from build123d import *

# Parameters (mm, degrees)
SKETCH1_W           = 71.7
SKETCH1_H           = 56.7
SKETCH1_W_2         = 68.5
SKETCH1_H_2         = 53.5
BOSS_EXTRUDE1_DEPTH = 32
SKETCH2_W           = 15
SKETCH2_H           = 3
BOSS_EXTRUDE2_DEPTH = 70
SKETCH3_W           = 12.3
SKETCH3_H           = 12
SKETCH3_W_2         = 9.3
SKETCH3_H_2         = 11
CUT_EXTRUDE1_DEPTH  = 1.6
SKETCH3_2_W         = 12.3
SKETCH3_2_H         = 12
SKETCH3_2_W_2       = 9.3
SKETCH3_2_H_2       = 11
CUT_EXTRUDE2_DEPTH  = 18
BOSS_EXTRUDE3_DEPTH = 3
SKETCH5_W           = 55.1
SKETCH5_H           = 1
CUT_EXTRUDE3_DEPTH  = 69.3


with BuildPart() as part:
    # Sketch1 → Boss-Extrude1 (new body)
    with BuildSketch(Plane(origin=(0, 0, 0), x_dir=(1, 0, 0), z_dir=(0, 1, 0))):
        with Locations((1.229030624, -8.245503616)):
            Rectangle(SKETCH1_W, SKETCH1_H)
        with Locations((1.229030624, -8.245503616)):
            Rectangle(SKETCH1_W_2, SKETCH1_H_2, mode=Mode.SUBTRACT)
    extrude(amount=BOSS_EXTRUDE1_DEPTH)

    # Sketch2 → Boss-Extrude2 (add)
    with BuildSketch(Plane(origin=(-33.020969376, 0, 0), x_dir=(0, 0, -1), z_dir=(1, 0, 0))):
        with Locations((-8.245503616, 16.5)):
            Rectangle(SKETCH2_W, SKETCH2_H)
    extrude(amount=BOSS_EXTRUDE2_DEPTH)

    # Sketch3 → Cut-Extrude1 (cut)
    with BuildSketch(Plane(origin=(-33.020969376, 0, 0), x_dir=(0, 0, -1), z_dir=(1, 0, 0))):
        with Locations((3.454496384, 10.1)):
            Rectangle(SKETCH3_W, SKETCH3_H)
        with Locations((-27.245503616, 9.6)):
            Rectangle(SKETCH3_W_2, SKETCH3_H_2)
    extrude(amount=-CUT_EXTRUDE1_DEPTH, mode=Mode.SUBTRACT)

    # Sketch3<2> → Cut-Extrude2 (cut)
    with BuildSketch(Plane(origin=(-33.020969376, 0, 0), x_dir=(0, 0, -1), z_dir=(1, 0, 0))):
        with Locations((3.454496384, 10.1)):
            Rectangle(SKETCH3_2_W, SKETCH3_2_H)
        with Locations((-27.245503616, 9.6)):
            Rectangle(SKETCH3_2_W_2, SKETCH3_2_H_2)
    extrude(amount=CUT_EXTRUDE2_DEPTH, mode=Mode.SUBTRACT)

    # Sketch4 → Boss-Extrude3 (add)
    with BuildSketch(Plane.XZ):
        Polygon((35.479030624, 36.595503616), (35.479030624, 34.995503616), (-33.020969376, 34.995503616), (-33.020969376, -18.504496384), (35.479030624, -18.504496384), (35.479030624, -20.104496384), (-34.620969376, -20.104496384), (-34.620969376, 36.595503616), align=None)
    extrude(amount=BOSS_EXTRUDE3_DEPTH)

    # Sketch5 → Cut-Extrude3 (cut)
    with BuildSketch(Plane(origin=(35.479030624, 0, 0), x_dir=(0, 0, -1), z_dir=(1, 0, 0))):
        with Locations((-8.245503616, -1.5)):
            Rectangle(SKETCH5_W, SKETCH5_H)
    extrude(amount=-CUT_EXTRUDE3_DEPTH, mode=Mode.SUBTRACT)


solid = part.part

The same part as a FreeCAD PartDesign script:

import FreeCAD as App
import Part
import Sketcher

V = App.Vector
Q = App.Units.Quantity


def add_polygon(sketch, points):
    """Adds a closed chain of lines whose ends are joined by coincident constraints."""
    first, n = sketch.GeometryCount, len(points)
    for a, b in zip(points, points[1:] + points[:1]):
        sketch.addGeometry(Part.LineSegment(App.Vector(*a, 0), App.Vector(*b, 0)), False)
    for i in range(n):
        sketch.addConstraint(Sketcher.Constraint("Coincident", first + i, 2, first + (i + 1) % n, 1))

doc = App.newDocument("Part")
body = doc.addObject("PartDesign::Body", "Body")

sketch1 = body.newObject("Sketcher::SketchObject", "Sketch")
sketch1.AttachmentSupport = (doc.getObject("XZ_Plane"), [""])
sketch1.MapMode = "FlatFace"
add_polygon(sketch1, [(-34.620969, -20.104496), (-34.620969, 36.595504), (37.079031, 36.595504), (37.079031, -20.104496)])
add_polygon(sketch1, [(35.479031, 34.995504), (-33.020969, 34.995504), (-33.020969, -18.504496), (35.479031, -18.504496)])
sketch1.addConstraint(Sketcher.Constraint("Vertical", 0))
sketch1.addConstraint(Sketcher.Constraint("Horizontal", 1))
sketch1.addConstraint(Sketcher.Constraint("Vertical", 2))
sketch1.addConstraint(Sketcher.Constraint("Horizontal", 3))
sketch1.addConstraint(Sketcher.Constraint("Horizontal", 4))
sketch1.addConstraint(Sketcher.Constraint("Vertical", 5))
sketch1.addConstraint(Sketcher.Constraint("Horizontal", 6))
sketch1.addConstraint(Sketcher.Constraint("Vertical", 7))
sketch1.addConstraint(Sketcher.Constraint("DistanceX", 1, 1, 1, 2, Q("71.7 mm")))
sketch1.addConstraint(Sketcher.Constraint("DistanceX", 4, 2, 4, 1, Q("68.5 mm")))
sketch1.addConstraint(Sketcher.Constraint("DistanceY", 0, 1, 0, 2, Q("56.7 mm")))
sketch1.addConstraint(Sketcher.Constraint("DistanceY", 5, 2, 5, 1, Q("53.5 mm")))
sketch1.addConstraint(Sketcher.Constraint("DistanceX", 0, 2, 4, 2, Q("1.6 mm")))
sketch1.addConstraint(Sketcher.Constraint("DistanceY", 4, 2, 0, 2, Q("1.6 mm")))
sketch1.addConstraint(Sketcher.Constraint("DistanceX", 0, 2, -1, 1, Q("34.620969 mm")))
sketch1.addConstraint(Sketcher.Constraint("DistanceY", -1, 1, 0, 2, Q("36.595504 mm")))
pad1 = body.newObject("PartDesign::Pad", "Pad")
pad1.Profile = sketch1
pad1.Length = 32
pad1.Reversed = True

sketch2 = body.newObject("Sketcher::SketchObject", "Sketch001")
sketch2.AttachmentSupport = (doc.getObject("YZ_Plane"), [""])
sketch2.MapMode = "FlatFace"
sketch2.AttachmentOffset = App.Placement(V(0, 0, -33.020969), App.Rotation())
add_polygon(sketch2, [(18, 15.745504), (15, 15.745504), (15, 0.745504), (18, 0.745504)])
sketch2.addConstraint(Sketcher.Constraint("Horizontal", 0))
sketch2.addConstraint(Sketcher.Constraint("Vertical", 1))
sketch2.addConstraint(Sketcher.Constraint("Horizontal", 2))
sketch2.addConstraint(Sketcher.Constraint("Vertical", 3))
sketch2.addConstraint(Sketcher.Constraint("DistanceX", 0, 2, 0, 1, Q("3 mm")))
sketch2.addConstraint(Sketcher.Constraint("DistanceY", 1, 2, 1, 1, Q("15 mm")))
sketch2.addConstraint(Sketcher.Constraint("DistanceX", -1, 1, 0, 2, Q("15 mm")))
sketch2.addConstraint(Sketcher.Constraint("DistanceY", -1, 1, 0, 2, Q("15.745504 mm")))
pad2 = body.newObject("PartDesign::Pad", "Pad001")
pad2.Profile = sketch2
pad2.Length = 70

sketch3 = body.newObject("Sketcher::SketchObject", "Sketch002")
sketch3.AttachmentSupport = (doc.getObject("YZ_Plane"), [""])
sketch3.MapMode = "FlatFace"
sketch3.AttachmentOffset = App.Placement(V(0, 0, -33.020969), App.Rotation())
add_polygon(sketch3, [(16.1, 2.695504), (4.1, 2.695504), (4.1, -9.604496), (16.1, -9.604496)])
add_polygon(sketch3, [(15.1, 31.895504), (4.1, 31.895504), (4.1, 22.595504), (15.1, 22.595504)])
sketch3.addConstraint(Sketcher.Constraint("Horizontal", 0))
sketch3.addConstraint(Sketcher.Constraint("Vertical", 1))
sketch3.addConstraint(Sketcher.Constraint("Horizontal", 2))
sketch3.addConstraint(Sketcher.Constraint("Vertical", 3))
sketch3.addConstraint(Sketcher.Constraint("Horizontal", 4))
sketch3.addConstraint(Sketcher.Constraint("Vertical", 5))
sketch3.addConstraint(Sketcher.Constraint("Horizontal", 6))
sketch3.addConstraint(Sketcher.Constraint("Vertical", 7))
sketch3.addConstraint(Sketcher.Constraint("Vertical", 1, 2, 4, 2))
sketch3.addConstraint(Sketcher.Constraint("DistanceX", 0, 2, 0, 1, Q("12 mm")))
sketch3.addConstraint(Sketcher.Constraint("DistanceX", 4, 2, 4, 1, Q("11 mm")))
sketch3.addConstraint(Sketcher.Constraint("DistanceY", 1, 2, 1, 1, Q("12.3 mm")))
sketch3.addConstraint(Sketcher.Constraint("DistanceY", 5, 2, 5, 1, Q("9.3 mm")))
sketch3.addConstraint(Sketcher.Constraint("DistanceX", -1, 1, 0, 2, Q("4.1 mm")))
sketch3.addConstraint(Sketcher.Constraint("DistanceY", 0, 2, 4, 2, Q("29.2 mm")))
sketch3.addConstraint(Sketcher.Constraint("DistanceY", -1, 1, 0, 2, Q("2.695504 mm")))
pocket1 = body.newObject("PartDesign::Pocket", "Pocket")
pocket1.Profile = sketch3
pocket1.Length = 1.6

sketch4 = body.newObject("Sketcher::SketchObject", "Sketch003")
sketch4.AttachmentSupport = (doc.getObject("YZ_Plane"), [""])
sketch4.MapMode = "FlatFace"
sketch4.AttachmentOffset = App.Placement(V(0, 0, -33.020969), App.Rotation())
add_polygon(sketch4, [(16.1, 2.695504), (4.1, 2.695504), (4.1, -9.604496), (16.1, -9.604496)])
add_polygon(sketch4, [(15.1, 31.895504), (4.1, 31.895504), (4.1, 22.595504), (15.1, 22.595504)])
sketch4.addConstraint(Sketcher.Constraint("Horizontal", 0))
sketch4.addConstraint(Sketcher.Constraint("Vertical", 1))
sketch4.addConstraint(Sketcher.Constraint("Horizontal", 2))
sketch4.addConstraint(Sketcher.Constraint("Vertical", 3))
sketch4.addConstraint(Sketcher.Constraint("Horizontal", 4))
sketch4.addConstraint(Sketcher.Constraint("Vertical", 5))
sketch4.addConstraint(Sketcher.Constraint("Horizontal", 6))
sketch4.addConstraint(Sketcher.Constraint("Vertical", 7))
sketch4.addConstraint(Sketcher.Constraint("Vertical", 1, 2, 4, 2))
sketch4.addConstraint(Sketcher.Constraint("DistanceX", 0, 2, 0, 1, Q("12 mm")))
sketch4.addConstraint(Sketcher.Constraint("DistanceX", 4, 2, 4, 1, Q("11 mm")))
sketch4.addConstraint(Sketcher.Constraint("DistanceY", 1, 2, 1, 1, Q("12.3 mm")))
sketch4.addConstraint(Sketcher.Constraint("DistanceY", 5, 2, 5, 1, Q("9.3 mm")))
sketch4.addConstraint(Sketcher.Constraint("DistanceX", -1, 1, 0, 2, Q("4.1 mm")))
sketch4.addConstraint(Sketcher.Constraint("DistanceY", 0, 2, 4, 2, Q("29.2 mm")))
sketch4.addConstraint(Sketcher.Constraint("DistanceY", -1, 1, 0, 2, Q("2.695504 mm")))
pocket2 = body.newObject("PartDesign::Pocket", "Pocket001")
pocket2.Profile = sketch4
pocket2.Length = 18
pocket2.Reversed = True

sketch5 = body.newObject("Sketcher::SketchObject", "Sketch004")
sketch5.AttachmentSupport = (doc.getObject("XZ_Plane"), [""])
sketch5.MapMode = "FlatFace"
add_polygon(sketch5, [(35.479031, 34.995504), (35.479031, 36.595504), (-34.620969, 36.595504), (-34.620969, -20.104496), (35.479031, -20.104496), (35.479031, -18.504496), (-33.020969, -18.504496), (-33.020969, 34.995504)])
sketch5.addConstraint(Sketcher.Constraint("Vertical", 0))
sketch5.addConstraint(Sketcher.Constraint("Horizontal", 1))
sketch5.addConstraint(Sketcher.Constraint("Vertical", 2))
sketch5.addConstraint(Sketcher.Constraint("Horizontal", 3))
sketch5.addConstraint(Sketcher.Constraint("Vertical", 4))
sketch5.addConstraint(Sketcher.Constraint("Horizontal", 5))
sketch5.addConstraint(Sketcher.Constraint("Vertical", 6))
sketch5.addConstraint(Sketcher.Constraint("Horizontal", 7))
sketch5.addConstraint(Sketcher.Constraint("Vertical", 0, 2, 3, 2))
sketch5.addConstraint(Sketcher.Constraint("Equal", 0, 4))
sketch5.addConstraint(Sketcher.Constraint("DistanceX", 1, 2, 1, 1, Q("70.1 mm")))
sketch5.addConstraint(Sketcher.Constraint("DistanceX", 5, 2, 5, 1, Q("68.5 mm")))
sketch5.addConstraint(Sketcher.Constraint("DistanceY", 0, 1, 0, 2, Q("1.6 mm")))
sketch5.addConstraint(Sketcher.Constraint("DistanceY", 2, 2, 2, 1, Q("56.7 mm")))
sketch5.addConstraint(Sketcher.Constraint("DistanceX", -1, 1, 0, 2, Q("35.479031 mm")))
sketch5.addConstraint(Sketcher.Constraint("DistanceY", -1, 1, 0, 2, Q("36.595504 mm")))
pad3 = body.newObject("PartDesign::Pad", "Pad002")
pad3.Profile = sketch5
pad3.Length = 3

sketch6 = body.newObject("Sketcher::SketchObject", "Sketch005")
sketch6.AttachmentSupport = (doc.getObject("YZ_Plane"), [""])
sketch6.MapMode = "FlatFace"
sketch6.AttachmentOffset = App.Placement(V(0, 0, 35.479031), App.Rotation())
add_polygon(sketch6, [(-1, 35.795504), (-2, 35.795504), (-2, -19.304496), (-1, -19.304496)])
sketch6.addConstraint(Sketcher.Constraint("Horizontal", 0))
sketch6.addConstraint(Sketcher.Constraint("Vertical", 1))
sketch6.addConstraint(Sketcher.Constraint("Horizontal", 2))
sketch6.addConstraint(Sketcher.Constraint("Vertical", 3))
sketch6.addConstraint(Sketcher.Constraint("DistanceX", 0, 2, 0, 1, Q("1 mm")))
sketch6.addConstraint(Sketcher.Constraint("DistanceY", 1, 2, 1, 1, Q("55.1 mm")))
sketch6.addConstraint(Sketcher.Constraint("DistanceX", 0, 2, -1, 1, Q("2 mm")))
sketch6.addConstraint(Sketcher.Constraint("DistanceY", -1, 1, 0, 2, Q("35.795504 mm")))
pocket3 = body.newObject("PartDesign::Pocket", "Pocket002")
pocket3.Profile = sketch6
pocket3.Length = 69.3

doc.recompute()
